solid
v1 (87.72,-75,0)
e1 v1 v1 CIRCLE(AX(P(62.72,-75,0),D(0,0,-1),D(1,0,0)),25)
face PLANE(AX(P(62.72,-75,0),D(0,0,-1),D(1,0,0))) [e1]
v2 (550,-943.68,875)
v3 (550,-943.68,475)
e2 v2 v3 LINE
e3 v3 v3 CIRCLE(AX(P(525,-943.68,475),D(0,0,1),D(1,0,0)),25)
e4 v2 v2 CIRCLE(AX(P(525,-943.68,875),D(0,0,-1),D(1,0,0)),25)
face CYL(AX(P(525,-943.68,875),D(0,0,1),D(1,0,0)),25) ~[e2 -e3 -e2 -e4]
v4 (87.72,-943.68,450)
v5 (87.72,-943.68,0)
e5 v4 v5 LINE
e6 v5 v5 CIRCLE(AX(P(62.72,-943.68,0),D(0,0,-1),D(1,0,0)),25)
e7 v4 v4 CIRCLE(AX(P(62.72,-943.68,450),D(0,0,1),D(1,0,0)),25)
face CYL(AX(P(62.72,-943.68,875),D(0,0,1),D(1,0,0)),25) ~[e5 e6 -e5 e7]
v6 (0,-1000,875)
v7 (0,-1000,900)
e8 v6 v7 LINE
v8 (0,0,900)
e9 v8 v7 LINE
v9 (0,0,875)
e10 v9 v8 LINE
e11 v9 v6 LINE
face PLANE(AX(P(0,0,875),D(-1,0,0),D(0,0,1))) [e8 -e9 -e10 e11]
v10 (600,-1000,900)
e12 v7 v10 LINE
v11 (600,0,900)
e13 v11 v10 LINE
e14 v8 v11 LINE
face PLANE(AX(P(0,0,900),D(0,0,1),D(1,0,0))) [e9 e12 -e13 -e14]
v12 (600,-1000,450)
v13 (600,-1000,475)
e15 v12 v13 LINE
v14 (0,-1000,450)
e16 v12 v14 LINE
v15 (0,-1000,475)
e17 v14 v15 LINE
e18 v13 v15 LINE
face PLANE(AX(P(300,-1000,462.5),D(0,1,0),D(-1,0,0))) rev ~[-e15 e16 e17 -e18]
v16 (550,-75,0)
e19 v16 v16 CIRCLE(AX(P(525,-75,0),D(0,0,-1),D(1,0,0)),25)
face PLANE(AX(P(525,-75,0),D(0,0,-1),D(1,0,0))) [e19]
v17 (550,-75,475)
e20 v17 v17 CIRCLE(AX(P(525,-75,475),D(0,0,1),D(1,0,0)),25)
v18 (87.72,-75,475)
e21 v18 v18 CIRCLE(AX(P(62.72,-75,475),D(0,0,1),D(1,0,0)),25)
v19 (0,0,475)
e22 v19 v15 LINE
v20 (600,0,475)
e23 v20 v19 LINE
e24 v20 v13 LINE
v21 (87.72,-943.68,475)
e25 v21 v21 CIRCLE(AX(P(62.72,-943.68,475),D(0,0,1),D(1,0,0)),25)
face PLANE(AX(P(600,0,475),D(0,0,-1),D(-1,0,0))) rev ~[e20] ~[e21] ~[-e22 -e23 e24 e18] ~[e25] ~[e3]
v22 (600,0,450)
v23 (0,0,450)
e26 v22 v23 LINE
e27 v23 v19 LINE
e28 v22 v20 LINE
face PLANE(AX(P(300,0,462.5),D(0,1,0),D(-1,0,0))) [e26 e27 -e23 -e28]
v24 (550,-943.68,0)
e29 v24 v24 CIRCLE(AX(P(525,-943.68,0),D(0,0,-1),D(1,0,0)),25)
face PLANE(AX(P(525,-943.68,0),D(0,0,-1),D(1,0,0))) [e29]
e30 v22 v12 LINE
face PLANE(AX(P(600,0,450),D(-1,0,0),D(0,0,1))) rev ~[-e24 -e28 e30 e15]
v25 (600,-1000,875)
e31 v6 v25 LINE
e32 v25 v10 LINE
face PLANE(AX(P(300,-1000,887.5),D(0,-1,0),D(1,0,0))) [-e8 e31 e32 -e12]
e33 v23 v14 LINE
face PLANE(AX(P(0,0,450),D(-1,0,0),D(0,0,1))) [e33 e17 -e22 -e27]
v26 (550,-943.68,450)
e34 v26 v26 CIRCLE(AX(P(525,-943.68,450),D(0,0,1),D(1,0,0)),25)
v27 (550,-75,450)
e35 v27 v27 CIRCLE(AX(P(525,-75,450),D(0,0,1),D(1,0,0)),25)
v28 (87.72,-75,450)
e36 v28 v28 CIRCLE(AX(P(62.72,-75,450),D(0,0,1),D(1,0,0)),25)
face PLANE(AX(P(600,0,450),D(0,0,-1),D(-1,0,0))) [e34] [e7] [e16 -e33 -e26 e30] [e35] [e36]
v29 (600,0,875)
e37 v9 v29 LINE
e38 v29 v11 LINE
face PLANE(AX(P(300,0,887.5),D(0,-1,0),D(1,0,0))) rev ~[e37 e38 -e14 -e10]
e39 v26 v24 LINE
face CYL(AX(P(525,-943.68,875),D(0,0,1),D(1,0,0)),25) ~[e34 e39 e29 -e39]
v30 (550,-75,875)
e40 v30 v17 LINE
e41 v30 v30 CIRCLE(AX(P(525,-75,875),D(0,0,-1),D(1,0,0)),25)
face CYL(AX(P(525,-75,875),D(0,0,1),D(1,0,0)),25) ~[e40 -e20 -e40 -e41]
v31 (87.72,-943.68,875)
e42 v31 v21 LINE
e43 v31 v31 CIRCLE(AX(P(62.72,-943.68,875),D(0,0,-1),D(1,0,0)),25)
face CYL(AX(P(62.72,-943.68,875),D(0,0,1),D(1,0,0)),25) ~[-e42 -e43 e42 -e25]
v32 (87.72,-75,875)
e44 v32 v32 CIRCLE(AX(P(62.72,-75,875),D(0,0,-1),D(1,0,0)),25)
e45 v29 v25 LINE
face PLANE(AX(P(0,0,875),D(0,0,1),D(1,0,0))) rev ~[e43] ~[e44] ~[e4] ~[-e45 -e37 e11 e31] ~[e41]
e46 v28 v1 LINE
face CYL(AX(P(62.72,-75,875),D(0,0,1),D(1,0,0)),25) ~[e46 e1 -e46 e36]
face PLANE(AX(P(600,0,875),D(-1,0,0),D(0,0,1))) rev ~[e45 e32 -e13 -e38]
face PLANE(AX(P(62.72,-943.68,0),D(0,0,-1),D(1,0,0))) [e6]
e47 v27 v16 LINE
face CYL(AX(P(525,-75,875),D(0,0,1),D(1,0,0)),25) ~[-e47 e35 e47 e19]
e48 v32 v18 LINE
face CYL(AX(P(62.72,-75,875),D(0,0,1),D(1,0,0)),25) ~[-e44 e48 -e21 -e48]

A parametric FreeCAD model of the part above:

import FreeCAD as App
import Part
import Sketcher
from FreeCAD import Vector
Q = App.Units.Quantity

doc = App.newDocument("Part")
params = doc.addObject("Spreadsheet::Sheet", "Params")
for row, (alias, value) in enumerate([
    ("sketch1_width", "600 mm"),
    ("sketch1_height", "25 mm"),
    ("pad1_length", "1000 mm"),
    ("sketch2_diameter", "50 mm"),
    ("pad2_length", "875 mm"),
    ("sketch3_width", "600 mm"),
    ("sketch3_height", "25 mm"),
    ("pad3_length", "1000 mm"),
], start=1):
    params.set(f"A{row}", alias)
    params.set(f"B{row}", "=" + value)
    params.setAlias(f"B{row}", alias)

body = doc.addObject("PartDesign::Body", "Body")

sketch1 = body.newObject("Sketcher::SketchObject", "Sketch")
sketch1.AttachmentSupport = (doc.getObject("XZ_Plane"), [""])
sketch1.MapMode = "FlatFace"
sketch1.addGeometry([
    Part.LineSegment(Vector(0, 900, 0), Vector(0, 875, 0)),
    Part.LineSegment(Vector(0, 875, 0), Vector(600, 875, 0)),
    Part.LineSegment(Vector(600, 875, 0), Vector(600, 900, 0)),
    Part.LineSegment(Vector(600, 900, 0), Vector(0, 900, 0)),
], False)
sketch1.addConstraint([
    Sketcher.Constraint("Coincident", 0, 2, 1, 1),
    Sketcher.Constraint("Coincident", 1, 2, 2, 1),
    Sketcher.Constraint("Coincident", 2, 2, 3, 1),
    Sketcher.Constraint("Coincident", 3, 2, 0, 1),
    Sketcher.Constraint("Vertical", 0),
    Sketcher.Constraint("Horizontal", 1),
    Sketcher.Constraint("Vertical", 2),
    Sketcher.Constraint("Horizontal", 3),
    Sketcher.Constraint("PointOnObject", 0, 2, -2),
    Sketcher.Constraint("DistanceX", 1, 1, 1, 2, Q("600 mm")),
    Sketcher.Constraint("DistanceY", 0, 2, 0, 1, Q("25 mm")),
    Sketcher.Constraint("DistanceY", -1, 1, 0, 2, Q("875 mm")),
])
sketch1.setExpression("Constraints[9]", "Params.sketch1_width")
sketch1.setExpression("Constraints[10]", "Params.sketch1_height")
pad1 = body.newObject("PartDesign::Pad", "Pad")
pad1.Profile = sketch1
pad1.setExpression("Length", "Params.pad1_length")

sketch2 = body.newObject("Sketcher::SketchObject", "Sketch001")
sketch2.AttachmentSupport = (doc.getObject("XY_Plane"), [""])
sketch2.MapMode = "FlatFace"
sketch2.AttachmentOffset = App.Placement(Vector(0, 0, 875), App.Rotation())
sketch2.addGeometry([
    Part.Circle(Vector(525, -75, 0), Vector(0, 0, 1), 25),
    Part.Circle(Vector(63, -75, 0), Vector(0, 0, 1), 25),
    Part.Circle(Vector(525, -944, 0), Vector(0, 0, 1), 25),
    Part.Circle(Vector(63, -944, 0), Vector(0, 0, 1), 25),
], False)
sketch2.addConstraint([
    Sketcher.Constraint("Equal", 0, 1),
    Sketcher.Constraint("Equal", 1, 2),
    Sketcher.Constraint("Equal", 2, 3),
    Sketcher.Constraint("Horizontal", 0, 3, 1, 3),
    Sketcher.Constraint("Horizontal", 2, 3, 3, 3),
    Sketcher.Constraint("Vertical", 0, 3, 2, 3),
    Sketcher.Constraint("Vertical", 1, 3, 3, 3),
    Sketcher.Constraint("Diameter", 0, Q("50 mm")),
    Sketcher.Constraint("DistanceX", -1, 1, 0, 3, Q("525 mm")),
    Sketcher.Constraint("DistanceY", 0, 3, -1, 1, Q("75 mm")),
    Sketcher.Constraint("DistanceX", -1, 1, 1, 3, Q("62.72 mm")),
    Sketcher.Constraint("DistanceY", 2, 3, -1, 1, Q("943.68 mm")),
])
sketch2.setExpression("Constraints[7]", "Params.sketch2_diameter")
pad2 = body.newObject("PartDesign::Pad", "Pad001")
pad2.Profile = sketch2
pad2.setExpression("Length", "Params.pad2_length")
pad2.Reversed = True

sketch3 = body.newObject("Sketcher::SketchObject", "Sketch002")
sketch3.AttachmentSupport = (doc.getObject("XZ_Plane"), [""])
sketch3.MapMode = "FlatFace"
sketch3.addGeometry([
    Part.LineSegment(Vector(600, 475, 0), Vector(600, 450, 0)),
    Part.LineSegment(Vector(600, 450, 0), Vector(0, 450, 0)),
    Part.LineSegment(Vector(0, 450, 0), Vector(0, 475, 0)),
    Part.LineSegment(Vector(0, 475, 0), Vector(600, 475, 0)),
], False)
sketch3.addConstraint([
    Sketcher.Constraint("Coincident", 0, 2, 1, 1),
    Sketcher.Constraint("Coincident", 1, 2, 2, 1),
    Sketcher.Constraint("Coincident", 2, 2, 3, 1),
    Sketcher.Constraint("Coincident", 3, 2, 0, 1),
    Sketcher.Constraint("Vertical", 0),
    Sketcher.Constraint("Horizontal", 1),
    Sketcher.Constraint("Vertical", 2),
    Sketcher.Constraint("Horizontal", 3),
    Sketcher.Constraint("PointOnObject", 1, 2, -2),
    Sketcher.Constraint("DistanceX", 1, 2, 1, 1, Q("600 mm")),
    Sketcher.Constraint("DistanceY", 0, 2, 0, 1, Q("25 mm")),
    Sketcher.Constraint("DistanceY", -1, 1, 0, 2, Q("450 mm")),
])
sketch3.setExpression("Constraints[9]", "Params.sketch3_width")
sketch3.setExpression("Constraints[10]", "Params.sketch3_height")
pad3 = body.newObject("PartDesign::Pad", "Pad002")
pad3.Profile = sketch3
pad3.setExpression("Length", "Params.pad3_length")

doc.recompute()
